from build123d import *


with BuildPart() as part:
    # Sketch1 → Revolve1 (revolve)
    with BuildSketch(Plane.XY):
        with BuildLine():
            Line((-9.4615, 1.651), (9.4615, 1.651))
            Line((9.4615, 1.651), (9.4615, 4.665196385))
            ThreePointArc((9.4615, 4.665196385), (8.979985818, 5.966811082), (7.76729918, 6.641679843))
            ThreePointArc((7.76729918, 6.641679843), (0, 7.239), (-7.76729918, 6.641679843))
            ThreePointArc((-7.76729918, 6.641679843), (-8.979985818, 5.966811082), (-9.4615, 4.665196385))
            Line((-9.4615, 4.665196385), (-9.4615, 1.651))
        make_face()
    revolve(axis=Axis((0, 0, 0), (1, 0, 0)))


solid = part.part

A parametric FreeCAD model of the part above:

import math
import FreeCAD as App
import Part
import Sketcher
Q = App.Units.Quantity

doc = App.newDocument("Part")
body = doc.addObject("PartDesign::Body", "Body")

# Sketch on XY plane
sketch1 = body.newObject("Sketcher::SketchObject", "Sketch")
sketch1.AttachmentSupport = (doc.getObject("XY_Plane"), [""])
sketch1.MapMode = "FlatFace"
sketch1.addGeometry([
    Part.LineSegment(App.Vector(-9.5, 1.7, 0), App.Vector(9.5, 1.7, 0)),  # 0
    Part.LineSegment(App.Vector(9.5, 1.7, 0), App.Vector(9.5, 4.7, 0)),  # 1
    Part.ArcOfCircle(Part.Circle(App.Vector(7.5, 4.7, 0), App.Vector(0, 0, 1), 2), math.radians(0), math.radians(81)),  # 2
    Part.ArcOfCircle(Part.Circle(App.Vector(0, -43.6, 0), App.Vector(0, 0, 1), 50.8), math.radians(81.21), math.radians(98.79)),  # 3
    Part.ArcOfCircle(Part.Circle(App.Vector(-7.5, 4.7, 0), App.Vector(0, 0, 1), 2), math.radians(99), math.radians(180)),  # 4
    Part.LineSegment(App.Vector(-9.5, 4.7, 0), App.Vector(-9.5, 1.7, 0)),  # 5
], False)
sketch1.addConstraint([
    Sketcher.Constraint("Coincident", 0, 2, 1, 1),
    Sketcher.Constraint("Tangent", 1, 2, 2, 1),
    Sketcher.Constraint("Tangent", 2, 2, 3, 1),
    Sketcher.Constraint("Tangent", 3, 2, 4, 1),
    Sketcher.Constraint("Tangent", 4, 2, 5, 1),
    Sketcher.Constraint("Coincident", 5, 2, 0, 1),
    Sketcher.Constraint("Horizontal", 0),
    Sketcher.Constraint("Vertical", 1),
    Sketcher.Constraint("Vertical", 5),
    Sketcher.Constraint("Equal", 2, 4),
    Sketcher.Constraint("Symmetric", 2, 3, 4, 3, -2),
    Sketcher.Constraint("Radius", 3, Q("2 in")),
    Sketcher.Constraint("DistanceX", 0, 1, 0, 2, Q("0.745 in")),
    Sketcher.Constraint("Radius", 2, Q("2 mm")),
    Sketcher.Constraint("DistanceY", 3, 3, 0, 2, Q("1.78 in")),
    Sketcher.Constraint("DistanceY", 3, 3, -1, 1, Q("1.715 in")),
])
revolution = body.newObject("PartDesign::Revolution", "Revolution")
revolution.Profile = sketch1
revolution.ReferenceAxis = (sketch1, ["H_Axis"])
revolution.Angle = 360

doc.recompute()
